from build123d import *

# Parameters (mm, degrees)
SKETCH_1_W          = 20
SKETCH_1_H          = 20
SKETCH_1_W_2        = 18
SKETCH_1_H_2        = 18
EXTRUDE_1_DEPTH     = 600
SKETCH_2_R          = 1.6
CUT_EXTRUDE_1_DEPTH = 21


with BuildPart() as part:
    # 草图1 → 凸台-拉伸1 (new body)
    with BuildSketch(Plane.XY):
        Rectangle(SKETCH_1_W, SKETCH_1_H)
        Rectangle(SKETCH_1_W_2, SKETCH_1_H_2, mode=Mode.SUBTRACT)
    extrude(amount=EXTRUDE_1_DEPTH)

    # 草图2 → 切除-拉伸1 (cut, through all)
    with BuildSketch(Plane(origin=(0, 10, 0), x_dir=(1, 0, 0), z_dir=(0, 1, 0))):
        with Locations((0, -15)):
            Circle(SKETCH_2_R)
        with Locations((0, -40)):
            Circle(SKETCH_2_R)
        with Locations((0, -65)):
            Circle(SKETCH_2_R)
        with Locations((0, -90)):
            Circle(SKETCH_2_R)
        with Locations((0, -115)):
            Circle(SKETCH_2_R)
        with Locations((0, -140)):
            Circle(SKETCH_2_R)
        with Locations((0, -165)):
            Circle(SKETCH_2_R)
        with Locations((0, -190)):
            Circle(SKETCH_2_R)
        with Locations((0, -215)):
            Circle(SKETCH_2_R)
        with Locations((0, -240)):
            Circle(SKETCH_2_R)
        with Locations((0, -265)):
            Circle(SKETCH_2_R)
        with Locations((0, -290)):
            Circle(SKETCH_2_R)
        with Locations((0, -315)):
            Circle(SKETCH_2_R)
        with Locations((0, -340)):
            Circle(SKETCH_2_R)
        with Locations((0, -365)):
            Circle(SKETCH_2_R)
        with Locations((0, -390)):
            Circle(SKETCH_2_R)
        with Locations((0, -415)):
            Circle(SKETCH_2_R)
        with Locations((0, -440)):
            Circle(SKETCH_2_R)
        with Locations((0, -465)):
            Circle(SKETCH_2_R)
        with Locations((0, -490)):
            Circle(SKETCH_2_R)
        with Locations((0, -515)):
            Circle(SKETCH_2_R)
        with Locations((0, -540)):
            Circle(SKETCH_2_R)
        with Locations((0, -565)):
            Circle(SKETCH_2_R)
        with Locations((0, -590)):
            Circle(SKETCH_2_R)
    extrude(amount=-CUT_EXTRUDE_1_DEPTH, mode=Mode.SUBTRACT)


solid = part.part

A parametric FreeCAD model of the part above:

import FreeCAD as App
import Part
import Sketcher

V = App.Vector
Q = App.Units.Quantity


def add_polygon(sketch, points):
    """Adds a closed chain of lines whose ends are joined by coincident constraints."""
    first, n = sketch.GeometryCount, len(points)
    for a, b in zip(points, points[1:] + points[:1]):
        sketch.addGeometry(Part.LineSegment(App.Vector(*a, 0), App.Vector(*b, 0)), False)
    for i in range(n):
        sketch.addConstraint(Sketcher.Constraint("Coincident", first + i, 2, first + (i + 1) % n, 1))

doc = App.newDocument("Part")
body = doc.addObject("PartDesign::Body", "Body")

# Sketch on XY plane
sketch1 = doc.addObject("Sketcher::SketchObject", "Sketch")
body.addObject(sketch1)
sketch1.AttachmentSupport = (doc.XY_Plane, [""])
sketch1.MapMode = "FlatFace"
add_polygon(sketch1, [(-10, 10), (-10, -10), (10, -10), (10, 10)])  # lines 0-3
add_polygon(sketch1, [(9, -9), (-9, -9), (-9, 9), (9, 9)])  # lines 4-7
sketch1.addConstraint(Sketcher.Constraint("Vertical", 0))
sketch1.addConstraint(Sketcher.Constraint("Horizontal", 1))
sketch1.addConstraint(Sketcher.Constraint("Vertical", 2))
sketch1.addConstraint(Sketcher.Constraint("Horizontal", 3))
sketch1.addConstraint(Sketcher.Constraint("Horizontal", 4))
sketch1.addConstraint(Sketcher.Constraint("Vertical", 5))
sketch1.addConstraint(Sketcher.Constraint("Horizontal", 6))
sketch1.addConstraint(Sketcher.Constraint("Vertical", 7))
sketch1.addConstraint(Sketcher.Constraint("Symmetric", 0, 2, 2, 2, -1, 1))
sketch1.addConstraint(Sketcher.Constraint("Symmetric", 4, 2, 6, 2, -1, 1))
sketch1.addConstraint(Sketcher.Constraint("Equal", 3, 0))
sketch1.addConstraint(Sketcher.Constraint("Equal", 6, 5))
sketch1.addConstraint(Sketcher.Constraint("DistanceX", 1, 1, 1, 2, Q("20 mm")))
sketch1.addConstraint(Sketcher.Constraint("DistanceX", 4, 2, 4, 1, Q("18 mm")))
pad1 = doc.addObject("PartDesign::Pad", "Pad")
body.addObject(pad1)
pad1.Profile = sketch1
pad1.Length = 600

# Sketch on XZ plane
sketch2 = doc.addObject("Sketcher::SketchObject", "Sketch001")
body.addObject(sketch2)
sketch2.AttachmentSupport = (doc.XZ_Plane, [""])
sketch2.MapMode = "FlatFace"
sketch2.AttachmentOffset = App.Placement(V(0, 0, -10), App.Rotation())
sketch2.addGeometry(Part.Circle(V(0, 15, 0), V(0, 0, 1), 1.6), False)
sketch2.addGeometry(Part.Circle(V(0, 40, 0), V(0, 0, 1), 1.6), False)
sketch2.addGeometry(Part.Circle(V(0, 65, 0), V(0, 0, 1), 1.6), False)
sketch2.addGeometry(Part.Circle(V(0, 90, 0), V(0, 0, 1), 1.6), False)
sketch2.addGeometry(Part.Circle(V(0, 115, 0), V(0, 0, 1), 1.6), False)
sketch2.addGeometry(Part.Circle(V(0, 140, 0), V(0, 0, 1), 1.6), False)
sketch2.addGeometry(Part.Circle(V(0, 165, 0), V(0, 0, 1), 1.6), False)
sketch2.addGeometry(Part.Circle(V(0, 190, 0), V(0, 0, 1), 1.6), False)
sketch2.addGeometry(Part.Circle(V(0, 215, 0), V(0, 0, 1), 1.6), False)
sketch2.addGeometry(Part.Circle(V(0, 240, 0), V(0, 0, 1), 1.6), False)
sketch2.addGeometry(Part.Circle(V(0, 265, 0), V(0, 0, 1), 1.6), False)
sketch2.addGeometry(Part.Circle(V(0, 290, 0), V(0, 0, 1), 1.6), False)
sketch2.addGeometry(Part.Circle(V(0, 315, 0), V(0, 0, 1), 1.6), False)
sketch2.addGeometry(Part.Circle(V(0, 340, 0), V(0, 0, 1), 1.6), False)
sketch2.addGeometry(Part.Circle(V(0, 365, 0), V(0, 0, 1), 1.6), False)
sketch2.addGeometry(Part.Circle(V(0, 390, 0), V(0, 0, 1), 1.6), False)
sketch2.addGeometry(Part.Circle(V(0, 415, 0), V(0, 0, 1), 1.6), False)
sketch2.addGeometry(Part.Circle(V(0, 440, 0), V(0, 0, 1), 1.6), False)
sketch2.addGeometry(Part.Circle(V(0, 465, 0), V(0, 0, 1), 1.6), False)
sketch2.addGeometry(Part.Circle(V(0, 490, 0), V(0, 0, 1), 1.6), False)
sketch2.addGeometry(Part.Circle(V(0, 515, 0), V(0, 0, 1), 1.6), False)
sketch2.addGeometry(Part.Circle(V(0, 540, 0), V(0, 0, 1), 1.6), False)
sketch2.addGeometry(Part.Circle(V(0, 565, 0), V(0, 0, 1), 1.6), False)
sketch2.addGeometry(Part.Circle(V(0, 590, 0), V(0, 0, 1), 1.6), False)
sketch2.addConstraint(Sketcher.Constraint("Equal", 0, 1))
sketch2.addConstraint(Sketcher.Constraint("Equal", 1, 2))
sketch2.addConstraint(Sketcher.Constraint("Equal", 2, 3))
sketch2.addConstraint(Sketcher.Constraint("Equal", 3, 4))
sketch2.addConstraint(Sketcher.Constraint("Equal", 4, 5))
sketch2.addConstraint(Sketcher.Constraint("Equal", 5, 6))
sketch2.addConstraint(Sketcher.Constraint("Equal", 6, 7))
sketch2.addConstraint(Sketcher.Constraint("Equal", 7, 8))
sketch2.addConstraint(Sketcher.Constraint("Equal", 8, 9))
sketch2.addConstraint(Sketcher.Constraint("Equal", 9, 10))
sketch2.addConstraint(Sketcher.Constraint("Equal", 10, 11))
sketch2.addConstraint(Sketcher.Constraint("Equal", 11, 12))
sketch2.addConstraint(Sketcher.Constraint("Equal", 12, 13))
sketch2.addConstraint(Sketcher.Constraint("Equal", 13, 14))
sketch2.addConstraint(Sketcher.Constraint("Equal", 14, 15))
sketch2.addConstraint(Sketcher.Constraint("Equal", 15, 16))
sketch2.addConstraint(Sketcher.Constraint("Equal", 16, 17))
sketch2.addConstraint(Sketcher.Constraint("Equal", 17, 18))
sketch2.addConstraint(Sketcher.Constraint("Equal", 18, 19))
sketch2.addConstraint(Sketcher.Constraint("Equal", 19, 20))
sketch2.addConstraint(Sketcher.Constraint("Equal", 20, 21))
sketch2.addConstraint(Sketcher.Constraint("Equal", 21, 22))
sketch2.addConstraint(Sketcher.Constraint("Equal", 22, 23))
sketch2.addConstraint(Sketcher.Constraint("PointOnObject", 0, 3, -2))
sketch2.addConstraint(Sketcher.Constraint("PointOnObject", 1, 3, -2))
sketch2.addConstraint(Sketcher.Constraint("PointOnObject", 2, 3, -2))
sketch2.addConstraint(Sketcher.Constraint("PointOnObject", 3, 3, -2))
sketch2.addConstraint(Sketcher.Constraint("PointOnObject", 4, 3, -2))
sketch2.addConstraint(Sketcher.Constraint("PointOnObject", 5, 3, -2))
sketch2.addConstraint(Sketcher.Constraint("PointOnObject", 6, 3, -2))
sketch2.addConstraint(Sketcher.Constraint("PointOnObject", 7, 3, -2))
sketch2.addConstraint(Sketcher.Constraint("PointOnObject", 8, 3, -2))
sketch2.addConstraint(Sketcher.Constraint("PointOnObject", 9, 3, -2))
sketch2.addConstraint(Sketcher.Constraint("PointOnObject", 10, 3, -2))
sketch2.addConstraint(Sketcher.Constraint("PointOnObject", 11, 3, -2))
sketch2.addConstraint(Sketcher.Constraint("PointOnObject", 12, 3, -2))
sketch2.addConstraint(Sketcher.Constraint("PointOnObject", 13, 3, -2))
sketch2.addConstraint(Sketcher.Constraint("PointOnObject", 14, 3, -2))
sketch2.addConstraint(Sketcher.Constraint("PointOnObject", 15, 3, -2))
sketch2.addConstraint(Sketcher.Constraint("PointOnObject", 16, 3, -2))
sketch2.addConstraint(Sketcher.Constraint("PointOnObject", 17, 3, -2))
sketch2.addConstraint(Sketcher.Constraint("PointOnObject", 18, 3, -2))
sketch2.addConstraint(Sketcher.Constraint("PointOnObject", 19, 3, -2))
sketch2.addConstraint(Sketcher.Constraint("PointOnObject", 20, 3, -2))
sketch2.addConstraint(Sketcher.Constraint("PointOnObject", 21, 3, -2))
sketch2.addConstraint(Sketcher.Constraint("PointOnObject", 22, 3, -2))
sketch2.addConstraint(Sketcher.Constraint("PointOnObject", 23, 3, -2))
sketch2.addConstraint(Sketcher.Constraint("Diameter", 0, Q("3.2 mm")))
sketch2.addConstraint(Sketcher.Constraint("DistanceY", -1, 1, 0, 3, Q("15 mm")))
sketch2.addConstraint(Sketcher.Constraint("DistanceY", -1, 1, 1, 3, Q("40 mm")))
sketch2.addConstraint(Sketcher.Constraint("DistanceY", -1, 1, 2, 3, Q("65 mm")))
sketch2.addConstraint(Sketcher.Constraint("DistanceY", -1, 1, 3, 3, Q("90 mm")))
sketch2.addConstraint(Sketcher.Constraint("DistanceY", -1, 1, 4, 3, Q("115 mm")))
sketch2.addConstraint(Sketcher.Constraint("DistanceY", -1, 1, 5, 3, Q("140 mm")))
sketch2.addConstraint(Sketcher.Constraint("DistanceY", -1, 1, 6, 3, Q("165 mm")))
sketch2.addConstraint(Sketcher.Constraint("DistanceY", -1, 1, 7, 3, Q("190 mm")))
sketch2.addConstraint(Sketcher.Constraint("DistanceY", -1, 1, 8, 3, Q("215 mm")))
sketch2.addConstraint(Sketcher.Constraint("DistanceY", -1, 1, 9, 3, Q("240 mm")))
sketch2.addConstraint(Sketcher.Constraint("DistanceY", -1, 1, 10, 3, Q("265 mm")))
sketch2.addConstraint(Sketcher.Constraint("DistanceY", -1, 1, 11, 3, Q("290 mm")))
sketch2.addConstraint(Sketcher.Constraint("DistanceY", -1, 1, 12, 3, Q("315 mm")))
sketch2.addConstraint(Sketcher.Constraint("DistanceY", -1, 1, 13, 3, Q("340 mm")))
sketch2.addConstraint(Sketcher.Constraint("DistanceY", -1, 1, 14, 3, Q("365 mm")))
sketch2.addConstraint(Sketcher.Constraint("DistanceY", -1, 1, 15, 3, Q("390 mm")))
sketch2.addConstraint(Sketcher.Constraint("DistanceY", -1, 1, 16, 3, Q("415 mm")))
sketch2.addConstraint(Sketcher.Constraint("DistanceY", -1, 1, 17, 3, Q("440 mm")))
sketch2.addConstraint(Sketcher.Constraint("DistanceY", -1, 1, 18, 3, Q("465 mm")))
sketch2.addConstraint(Sketcher.Constraint("DistanceY", -1, 1, 19, 3, Q("490 mm")))
sketch2.addConstraint(Sketcher.Constraint("DistanceY", -1, 1, 20, 3, Q("515 mm")))
sketch2.addConstraint(Sketcher.Constraint("DistanceY", -1, 1, 21, 3, Q("540 mm")))
sketch2.addConstraint(Sketcher.Constraint("DistanceY", -1, 1, 22, 3, Q("565 mm")))
sketch2.addConstraint(Sketcher.Constraint("DistanceY", -1, 1, 23, 3, Q("590 mm")))
pocket1 = doc.addObject("PartDesign::Pocket", "Pocket")
body.addObject(pocket1)
pocket1.Profile = sketch2
pocket1.Type = "ThroughAll"
pocket1.Reversed = True

doc.recompute()
